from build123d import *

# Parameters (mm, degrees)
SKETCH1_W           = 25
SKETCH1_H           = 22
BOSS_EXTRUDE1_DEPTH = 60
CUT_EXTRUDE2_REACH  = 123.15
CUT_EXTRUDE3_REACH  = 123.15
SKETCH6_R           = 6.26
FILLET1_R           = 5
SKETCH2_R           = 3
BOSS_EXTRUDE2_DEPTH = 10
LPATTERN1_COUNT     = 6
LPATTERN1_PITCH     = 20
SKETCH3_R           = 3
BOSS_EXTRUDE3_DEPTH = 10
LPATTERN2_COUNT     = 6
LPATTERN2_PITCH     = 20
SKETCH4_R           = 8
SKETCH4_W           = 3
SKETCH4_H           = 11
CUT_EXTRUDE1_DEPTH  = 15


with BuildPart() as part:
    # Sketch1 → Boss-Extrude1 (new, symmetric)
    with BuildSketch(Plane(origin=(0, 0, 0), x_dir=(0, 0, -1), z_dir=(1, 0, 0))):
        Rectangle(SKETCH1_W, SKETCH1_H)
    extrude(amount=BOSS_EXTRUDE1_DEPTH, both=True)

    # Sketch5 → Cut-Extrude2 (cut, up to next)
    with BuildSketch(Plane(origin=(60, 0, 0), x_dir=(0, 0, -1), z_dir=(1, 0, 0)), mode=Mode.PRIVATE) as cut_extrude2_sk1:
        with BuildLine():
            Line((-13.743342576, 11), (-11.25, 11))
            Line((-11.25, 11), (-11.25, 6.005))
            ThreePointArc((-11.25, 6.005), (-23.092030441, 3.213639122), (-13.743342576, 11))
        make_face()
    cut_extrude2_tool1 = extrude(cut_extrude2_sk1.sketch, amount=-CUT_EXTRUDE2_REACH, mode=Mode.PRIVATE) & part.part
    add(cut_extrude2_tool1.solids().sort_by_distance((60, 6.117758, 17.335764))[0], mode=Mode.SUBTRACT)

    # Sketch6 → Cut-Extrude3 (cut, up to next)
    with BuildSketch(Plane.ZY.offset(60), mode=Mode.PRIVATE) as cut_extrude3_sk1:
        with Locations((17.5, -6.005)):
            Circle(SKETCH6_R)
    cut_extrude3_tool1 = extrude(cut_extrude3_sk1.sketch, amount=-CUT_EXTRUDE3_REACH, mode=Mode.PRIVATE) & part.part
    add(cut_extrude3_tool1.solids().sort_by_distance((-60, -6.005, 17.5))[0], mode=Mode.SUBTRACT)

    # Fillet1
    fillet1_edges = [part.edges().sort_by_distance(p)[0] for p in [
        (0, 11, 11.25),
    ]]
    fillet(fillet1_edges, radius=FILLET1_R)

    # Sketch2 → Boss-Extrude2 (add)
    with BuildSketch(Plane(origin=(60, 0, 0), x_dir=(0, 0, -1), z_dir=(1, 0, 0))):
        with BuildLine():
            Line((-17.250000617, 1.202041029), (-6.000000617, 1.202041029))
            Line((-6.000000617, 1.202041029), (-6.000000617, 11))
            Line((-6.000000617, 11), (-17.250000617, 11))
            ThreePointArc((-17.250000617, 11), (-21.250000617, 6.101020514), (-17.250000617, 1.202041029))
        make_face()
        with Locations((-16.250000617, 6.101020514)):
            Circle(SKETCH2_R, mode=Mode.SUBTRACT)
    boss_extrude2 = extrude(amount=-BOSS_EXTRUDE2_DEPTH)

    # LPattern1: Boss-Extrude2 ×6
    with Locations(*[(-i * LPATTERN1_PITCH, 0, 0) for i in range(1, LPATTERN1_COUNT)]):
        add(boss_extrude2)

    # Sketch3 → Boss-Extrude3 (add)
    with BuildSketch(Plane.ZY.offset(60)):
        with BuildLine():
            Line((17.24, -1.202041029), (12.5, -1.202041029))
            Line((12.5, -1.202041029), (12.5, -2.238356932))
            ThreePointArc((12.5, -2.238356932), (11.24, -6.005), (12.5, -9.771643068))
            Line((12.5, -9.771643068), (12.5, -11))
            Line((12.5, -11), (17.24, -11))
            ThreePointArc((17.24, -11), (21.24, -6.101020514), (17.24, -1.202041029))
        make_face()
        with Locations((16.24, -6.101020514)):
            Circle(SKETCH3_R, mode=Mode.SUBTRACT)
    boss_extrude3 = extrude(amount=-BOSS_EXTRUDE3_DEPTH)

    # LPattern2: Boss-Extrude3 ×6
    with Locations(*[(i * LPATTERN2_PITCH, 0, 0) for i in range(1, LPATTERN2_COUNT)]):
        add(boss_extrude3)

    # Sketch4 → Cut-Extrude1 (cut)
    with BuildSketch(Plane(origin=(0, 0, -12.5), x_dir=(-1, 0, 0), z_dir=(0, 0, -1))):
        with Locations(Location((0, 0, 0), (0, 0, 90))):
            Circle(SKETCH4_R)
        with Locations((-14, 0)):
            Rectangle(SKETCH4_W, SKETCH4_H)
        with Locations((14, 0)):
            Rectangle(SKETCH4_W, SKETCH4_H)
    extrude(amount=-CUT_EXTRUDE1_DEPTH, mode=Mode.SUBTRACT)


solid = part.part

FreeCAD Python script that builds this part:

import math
import FreeCAD as App
import Part
import Sketcher
from FreeCAD import Vector
Q = App.Units.Quantity


def edges_at(feature, points):
    """Names of the edges that pass closest to the given points."""
    edges = feature.Shape.Edges
    near = lambda p: min(range(len(edges)), key=lambda i: edges[i].distToShape(Part.Vertex(*p))[0])
    return sorted({f"Edge{near(p) + 1}" for p in points})


def add_polygon(sketch, points):
    """Adds a closed chain of lines whose ends are joined by coincident constraints."""
    first, n = sketch.GeometryCount, len(points)
    for a, b in zip(points, points[1:] + points[:1]):
        sketch.addGeometry(Part.LineSegment(App.Vector(*a, 0), App.Vector(*b, 0)), False)
    for i in range(n):
        sketch.addConstraint(Sketcher.Constraint("Coincident", first + i, 2, first + (i + 1) % n, 1))

doc = App.newDocument("Part")
params = doc.addObject("Spreadsheet::Sheet", "Params")
for row, (alias, value) in enumerate([
    ("sketch1_width", "22 mm"),
    ("sketch1_height", "25 mm"),
    ("pad1_length", "120 mm"),
    ("sketch2_radius", "6.25 mm"),
    ("pocket1_length", "120 mm"),
    ("sketch3_diameter", "12.52 mm"),
    ("pocket2_length", "120 mm"),
    ("fillet_radius", "5 mm"),
    ("sketch4_diameter", "6 mm"),
    ("sketch4_radius", "5 mm"),
    ("sketch4_height", "11.25 mm"),
    ("pad2_length", "10 mm"),
    ("linearpattern_pitch", "20 mm"),
    ("sketch5_diameter", "6 mm"),
    ("sketch5_radius", "5 mm"),
    ("sketch5_radius2", "6.26 mm"),
    ("sketch5_height", "4.74 mm"),
    ("pad3_length", "10 mm"),
    ("linearpattern2_pitch", "20 mm"),
    ("sketch6_diameter", "16 mm"),
    ("sketch6_width", "3 mm"),
    ("sketch6_height", "11 mm"),
    ("pocket3_length", "15 mm"),
], start=1):
    params.set(f"A{row}", alias)
    params.set(f"B{row}", "=" + value)
    params.setAlias(f"B{row}", alias)

body = doc.addObject("PartDesign::Body", "Body")

sketch1 = doc.addObject("Sketcher::SketchObject", "Sketch")
body.addObject(sketch1)
sketch1.AttachmentSupport = (doc.YZ_Plane, [""])
sketch1.MapMode = "FlatFace"
add_polygon(sketch1, [(11, 12), (-11, 12), (-11, -12), (11, -12)])
sketch1.addConstraint([
    Sketcher.Constraint("Horizontal", 0),
    Sketcher.Constraint("Vertical", 1),
    Sketcher.Constraint("Horizontal", 2),
    Sketcher.Constraint("Vertical", 3),
    Sketcher.Constraint("Symmetric", 0, 2, 2, 2, -1, 1),
    Sketcher.Constraint("DistanceX", 0, 2, 0, 1, Q("22 mm")),
    Sketcher.Constraint("DistanceY", 1, 2, 1, 1, Q("25 mm")),
])
sketch1.setExpression("Constraints[9]", "Params.sketch1_width")
sketch1.setExpression("Constraints[10]", "Params.sketch1_height")
pad1 = doc.addObject("PartDesign::Pad", "Pad")
body.addObject(pad1)
pad1.Profile = sketch1
pad1.setExpression("Length", "Params.pad1_length")
pad1.Midplane = True

sketch2 = doc.addObject("Sketcher::SketchObject", "Sketch001")
body.addObject(sketch2)
sketch2.AttachmentSupport = (doc.YZ_Plane, [""])
sketch2.MapMode = "FlatFace"
sketch2.AttachmentOffset = App.Placement(Vector(0, 0, 60), App.Rotation())
sketch2.addGeometry([
    Part.LineSegment(Vector(11, 11.2, 0), Vector(11, 13.7, 0)),
    Part.ArcOfCircle(Part.Circle(Vector(6, 17.5, 0), Vector(0, 0, 1), 6.2), math.radians(-37), math.radians(270)),
    Part.LineSegment(Vector(6, 11.2, 0), Vector(11, 11.2, 0)),
], False)
sketch2.addConstraint([
    Sketcher.Constraint("Coincident", 0, 2, 1, 1),
    Sketcher.Constraint("Tangent", 1, 2, 2, 1),
    Sketcher.Constraint("Coincident", 2, 2, 0, 1),
    Sketcher.Constraint("Vertical", 0),
    Sketcher.Constraint("Horizontal", 2),
    Sketcher.Constraint("Radius", 1, Q("6.25 mm")),
    Sketcher.Constraint("DistanceX", -1, 1, 0, 2, Q("11 mm")),
    Sketcher.Constraint("DistanceY", -1, 1, 1, 3, Q("17.5 mm")),
    Sketcher.Constraint("DistanceX", 2, 1, 2, 2, Q("4.995 mm")),
])
sketch2.setExpression("Constraints[5]", "Params.sketch2_radius")
pocket1 = doc.addObject("PartDesign::Pocket", "Pocket")
body.addObject(pocket1)
pocket1.Profile = sketch2
pocket1.setExpression("Length", "Params.pocket1_length")

sketch3 = doc.addObject("Sketcher::SketchObject", "Sketch002")
body.addObject(sketch3)
sketch3.AttachmentSupport = (doc.YZ_Plane, [""])
sketch3.MapMode = "FlatFace"
sketch3.AttachmentOffset = App.Placement(Vector(0, 0, -60), App.Rotation())
sketch3.addGeometry(Part.Circle(Vector(-6, 18, 0), Vector(0, 0, 1), 6), False)
sketch3.addConstraint([
    Sketcher.Constraint("Diameter", 0, Q("12.52 mm")),
    Sketcher.Constraint("DistanceY", -1, 1, 0, 3, Q("17.5 mm")),
    Sketcher.Constraint("DistanceX", 0, 3, -1, 1, Q("6.005 mm")),
])
sketch3.setExpression("Constraints[0]", "Params.sketch3_diameter")
pocket2 = doc.addObject("PartDesign::Pocket", "Pocket001")
body.addObject(pocket2)
pocket2.Profile = sketch3
pocket2.setExpression("Length", "Params.pocket2_length")
pocket2.Reversed = True
doc.recompute()

fillet = doc.addObject("PartDesign::Fillet", "Fillet")
body.addObject(fillet)
fillet.Base = (pocket2, edges_at(pocket2, [(0, 11, 11.25)]))
fillet.setExpression("Radius", "Params.fillet_radius")

sketch4 = doc.addObject("Sketcher::SketchObject", "Sketch003")
body.addObject(sketch4)
sketch4.AttachmentSupport = (doc.YZ_Plane, [""])
sketch4.MapMode = "FlatFace"
sketch4.AttachmentOffset = App.Placement(Vector(0, 0, 60), App.Rotation())
sketch4.addGeometry([
    Part.LineSegment(Vector(1.2, 17.3, 0), Vector(1.2, 6, 0)),
    Part.LineSegment(Vector(1.2, 6, 0), Vector(11, 6, 0)),
    Part.LineSegment(Vector(11, 6, 0), Vector(11, 17.3, 0)),
    Part.ArcOfCircle(Part.Circle(Vector(6.1, 16.3, 0), Vector(0, 0, 1), 5), math.radians(12), math.radians(168)),
    Part.Circle(Vector(6.1, 16.3, 0), Vector(0, 0, 1), 3),
], False)
sketch4.addConstraint([
    Sketcher.Constraint("Coincident", 0, 2, 1, 1),
    Sketcher.Constraint("Coincident", 1, 2, 2, 1),
    Sketcher.Constraint("Coincident", 2, 2, 3, 1),
    Sketcher.Constraint("Coincident", 3, 2, 0, 1),
    Sketcher.Constraint("Vertical", 0),
    Sketcher.Constraint("Horizontal", 1),
    Sketcher.Constraint("Vertical", 2),
    Sketcher.Constraint("Coincident", 4, 3, 3, 3),
    Sketcher.Constraint("Horizontal", 2, 2, 3, 2),
    Sketcher.Constraint("Diameter", 4, Q("6 mm")),
    Sketcher.Constraint("Radius", 3, Q("5 mm")),
    Sketcher.Constraint("DistanceY", -1, 1, 0, 2, Q("6.000001 mm")),
    Sketcher.Constraint("DistanceX", -1, 1, 1, 2, Q("11 mm")),
    Sketcher.Constraint("DistanceY", 3, 3, 2, 2, Q("1 mm")),
    Sketcher.Constraint("DistanceY", 0, 2, 0, 1, Q("11.25 mm")),
])
sketch4.setExpression("Constraints[9]", "Params.sketch4_diameter")
sketch4.setExpression("Constraints[10]", "Params.sketch4_radius")
sketch4.setExpression("Constraints[14]", "Params.sketch4_height")
pad2 = doc.addObject("PartDesign::Pad", "Pad001")
body.addObject(pad2)
pad2.Profile = sketch4
pad2.setExpression("Length", "Params.pad2_length")
pad2.Reversed = True
doc.recompute()

linearpattern = doc.addObject("PartDesign::LinearPattern", "LinearPattern")
body.addObject(linearpattern)
linearpattern.Originals = [pad2]
linearpattern.Direction = (doc.X_Axis, [""])
linearpattern.Mode = "offset"
linearpattern.setExpression("Offset", "Params.linearpattern_pitch")
linearpattern.Occurrences = 6
linearpattern.Reversed = True
body.Tip = linearpattern

sketch5 = doc.addObject("Sketcher::SketchObject", "Sketch004")
body.addObject(sketch5)
sketch5.AttachmentSupport = (doc.YZ_Plane, [""])
sketch5.MapMode = "FlatFace"
sketch5.AttachmentOffset = App.Placement(Vector(0, 0, -60), App.Rotation())
sketch5.addGeometry([
    Part.LineSegment(Vector(-1.2, 17.2, 0), Vector(-1.2, 12.5, 0)),
    Part.LineSegment(Vector(-1.2, 12.5, 0), Vector(-2.2, 12.5, 0)),
    Part.ArcOfCircle(Part.Circle(Vector(-6, 17.5, 0), Vector(0, 0, 1), 6.3), math.radians(-127), math.radians(-53)),
    Part.LineSegment(Vector(-9.8, 12.5, 0), Vector(-11, 12.5, 0)),
    Part.LineSegment(Vector(-11, 12.5, 0), Vector(-11, 17.2, 0)),
    Part.ArcOfCircle(Part.Circle(Vector(-6.1, 16.2, 0), Vector(0, 0, 1), 5), math.radians(12), math.radians(168)),
    Part.Circle(Vector(-6.1, 16.2, 0), Vector(0, 0, 1), 3),
], False)
sketch5.addConstraint([
    Sketcher.Constraint("Coincident", 0, 2, 1, 1),
    Sketcher.Constraint("Coincident", 1, 2, 2, 2),
    Sketcher.Constraint("Coincident", 2, 1, 3, 1),
    Sketcher.Constraint("Coincident", 3, 2, 4, 1),
    Sketcher.Constraint("Coincident", 4, 2, 5, 2),
    Sketcher.Constraint("Coincident", 5, 1, 0, 1),
    Sketcher.Constraint("Vertical", 0),
    Sketcher.Constraint("Horizontal", 1),
    Sketcher.Constraint("Horizontal", 3),
    Sketcher.Constraint("Vertical", 4),
    Sketcher.Constraint("Coincident", 6, 3, 5, 3),
    Sketcher.Constraint("Horizontal", 1, 2, 2, 1),
    Sketcher.Constraint("Horizontal", 4, 2, 5, 1),
    Sketcher.Constraint("Diameter", 6, Q("6 mm")),
    Sketcher.Constraint("Radius", 5, Q("5 mm")),
    Sketcher.Constraint("Radius", 2, Q("6.26 mm")),
    Sketcher.Constraint("DistanceX", 3, 2, -1, 1, Q("11 mm")),
    Sketcher.Constraint("DistanceY", 0, 2, 2, 3, Q("5 mm")),
    Sketcher.Constraint("DistanceY", 5, 3, 4, 2, Q("1 mm")),
    Sketcher.Constraint("DistanceY", 0, 2, 0, 1, Q("4.74 mm")),
    Sketcher.Constraint("DistanceY", -1, 1, 2, 3, Q("17.5 mm")),
    Sketcher.Constraint("DistanceX", 2, 3, -1, 1, Q("6.005 mm")),
])
sketch5.setExpression("Constraints[13]", "Params.sketch5_diameter")
sketch5.setExpression("Constraints[14]", "Params.sketch5_radius")
sketch5.setExpression("Constraints[15]", "Params.sketch5_radius2")
sketch5.setExpression("Constraints[19]", "Params.sketch5_height")
pad3 = doc.addObject("PartDesign::Pad", "Pad002")
body.addObject(pad3)
pad3.Profile = sketch5
pad3.setExpression("Length", "Params.pad3_length")
doc.recompute()

linearpattern2 = doc.addObject("PartDesign::LinearPattern", "LinearPattern001")
body.addObject(linearpattern2)
linearpattern2.Originals = [pad3]
linearpattern2.Direction = (doc.X_Axis, [""])
linearpattern2.Mode = "offset"
linearpattern2.setExpression("Offset", "Params.linearpattern2_pitch")
linearpattern2.Occurrences = 6
body.Tip = linearpattern2

sketch6 = doc.addObject("Sketcher::SketchObject", "Sketch005")
body.addObject(sketch6)
sketch6.AttachmentSupport = (doc.XY_Plane, [""])
sketch6.MapMode = "FlatFace"
sketch6.AttachmentOffset = App.Placement(Vector(0, 0, -12.5), App.Rotation())
sketch6.addGeometry(Part.Circle(Vector(0, 0, 0), Vector(0, 0, 1), 8), False)
add_polygon(sketch6, [(15.5, 5.5), (15.5, -5.5), (12.5, -5.5), (12.5, 5.5)])
add_polygon(sketch6, [(-12.5, 5.5), (-12.5, -5.5), (-15.5, -5.5), (-15.5, 5.5)])
sketch6.addConstraint([
    Sketcher.Constraint("Vertical", 1),
    Sketcher.Constraint("Horizontal", 2),
    Sketcher.Constraint("Vertical", 3),
    Sketcher.Constraint("Horizontal", 4),
    Sketcher.Constraint("Vertical", 5),
    Sketcher.Constraint("Horizontal", 6),
    Sketcher.Constraint("Vertical", 7),
    Sketcher.Constraint("Horizontal", 8),
    Sketcher.Constraint("Coincident", 0, 3, -1, 1),
    Sketcher.Constraint("Symmetric", 3, 2, 5, 2, -1, 1),
    Sketcher.Constraint("Symmetric", 1, 2, 7, 2, -1, 1),
    Sketcher.Constraint("Horizontal", 2, 2, 5, 2),
    Sketcher.Constraint("Diameter", 0, Q("16 mm")),
    Sketcher.Constraint("DistanceX", 2, 2, 2, 1, Q("3 mm")),
    Sketcher.Constraint("DistanceY", 1, 2, 1, 1, Q("11 mm")),
    Sketcher.Constraint("DistanceX", 5, 2, 2, 2, Q("25 mm")),
])
sketch6.setExpression("Constraints[20]", "Params.sketch6_diameter")
sketch6.setExpression("Constraints[21]", "Params.sketch6_width")
sketch6.setExpression("Constraints[22]", "Params.sketch6_height")
pocket3 = doc.addObject("PartDesign::Pocket", "Pocket002")
body.addObject(pocket3)
pocket3.Profile = sketch6
pocket3.setExpression("Length", "Params.pocket3_length")
pocket3.Reversed = True

doc.recompute()
